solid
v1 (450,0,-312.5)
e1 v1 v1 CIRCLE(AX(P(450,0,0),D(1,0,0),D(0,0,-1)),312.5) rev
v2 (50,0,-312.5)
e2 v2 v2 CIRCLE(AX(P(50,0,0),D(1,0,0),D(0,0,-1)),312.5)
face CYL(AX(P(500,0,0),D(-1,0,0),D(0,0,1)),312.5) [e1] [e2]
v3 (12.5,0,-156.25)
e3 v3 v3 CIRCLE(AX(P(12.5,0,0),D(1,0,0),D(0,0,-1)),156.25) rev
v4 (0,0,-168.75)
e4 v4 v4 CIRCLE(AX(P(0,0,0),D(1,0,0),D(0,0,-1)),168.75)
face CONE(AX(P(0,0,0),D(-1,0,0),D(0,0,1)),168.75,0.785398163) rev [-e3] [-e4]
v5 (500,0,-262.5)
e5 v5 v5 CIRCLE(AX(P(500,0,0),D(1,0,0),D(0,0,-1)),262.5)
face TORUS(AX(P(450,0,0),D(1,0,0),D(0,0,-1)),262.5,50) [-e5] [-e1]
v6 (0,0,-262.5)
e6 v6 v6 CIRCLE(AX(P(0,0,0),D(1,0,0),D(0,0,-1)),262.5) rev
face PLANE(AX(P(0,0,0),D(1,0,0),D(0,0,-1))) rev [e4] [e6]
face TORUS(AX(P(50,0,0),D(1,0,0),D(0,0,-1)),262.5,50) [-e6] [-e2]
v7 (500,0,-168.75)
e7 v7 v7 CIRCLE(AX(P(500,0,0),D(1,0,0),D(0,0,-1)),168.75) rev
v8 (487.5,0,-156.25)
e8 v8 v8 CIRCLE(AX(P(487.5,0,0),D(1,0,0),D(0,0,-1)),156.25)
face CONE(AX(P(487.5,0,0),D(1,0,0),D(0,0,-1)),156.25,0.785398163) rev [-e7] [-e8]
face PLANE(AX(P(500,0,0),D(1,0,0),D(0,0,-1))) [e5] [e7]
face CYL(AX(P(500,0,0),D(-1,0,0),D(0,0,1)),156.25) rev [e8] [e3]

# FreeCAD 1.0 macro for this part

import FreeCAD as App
import Part
import Sketcher


def edges_at(feature, points):
    """Names of the edges that pass closest to the given points."""
    edges = feature.Shape.Edges
    near = lambda p: min(range(len(edges)), key=lambda i: edges[i].distToShape(Part.Vertex(*p))[0])
    return sorted({f"Edge{near(p) + 1}" for p in points})

doc = App.newDocument("Part")
body = doc.addObject("PartDesign::Body", "Body")

sketch1 = body.newObject("Sketcher::SketchObject", "Sketch")
sketch1.AttachmentSupport = (doc.getObject("YZ_Plane"), [""])
sketch1.MapMode = "FlatFace"
sketch1.addGeometry([
    Part.Circle(App.Vector(0, 0, 0), App.Vector(0, 0, 1), 312),
    Part.Circle(App.Vector(0, 0, 0), App.Vector(0, 0, 1), 156),
], False)
sketch1.addConstraint([
    Sketcher.Constraint("Coincident", 0, 3, -1, 1),
    Sketcher.Constraint("Coincident", 1, 3, -1, 1),
    Sketcher.Constraint("Diameter", 0, 625.0),
    Sketcher.Constraint("Diameter", 1, 312.5),
])
pad1 = body.newObject("PartDesign::Pad", "Pad")
pad1.Profile = sketch1
pad1.Length = 500
doc.recompute()

chamfer = body.newObject("PartDesign::Chamfer", "Chamfer")
chamfer.Base = (pad1, edges_at(pad1, [(0, 0, 156.25), (500, 0, 156.25)]))
chamfer.Size = 12.5
doc.recompute()

fillet = body.newObject("PartDesign::Fillet", "Fillet")
fillet.Base = (chamfer, edges_at(chamfer, [(0, 0, 312.5), (500, 0, 312.5)]))
fillet.Radius = 50

doc.recompute()
